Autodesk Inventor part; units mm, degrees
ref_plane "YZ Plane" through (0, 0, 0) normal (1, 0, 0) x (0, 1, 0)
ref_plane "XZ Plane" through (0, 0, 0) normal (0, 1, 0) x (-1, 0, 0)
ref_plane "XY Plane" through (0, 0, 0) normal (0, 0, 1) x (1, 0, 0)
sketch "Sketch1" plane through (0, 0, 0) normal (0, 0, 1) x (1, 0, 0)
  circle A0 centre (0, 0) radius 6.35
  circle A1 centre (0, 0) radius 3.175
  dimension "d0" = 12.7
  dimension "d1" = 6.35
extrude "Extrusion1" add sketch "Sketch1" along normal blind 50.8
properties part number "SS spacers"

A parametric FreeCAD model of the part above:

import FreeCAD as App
import Part
import Sketcher
from FreeCAD import Vector
Q = App.Units.Quantity

doc = App.newDocument("Part")
body = doc.addObject("PartDesign::Body", "Body")

# Sketch on XY plane
sketch1 = body.newObject("Sketcher::SketchObject", "Sketch")
sketch1.AttachmentSupport = (doc.getObject("XY_Plane"), [""])
sketch1.MapMode = "FlatFace"
sketch1.addGeometry([
    Part.Circle(Vector(0, 0, 0), Vector(0, 0, 1), 6.3),
    Part.Circle(Vector(0, 0, 0), Vector(0, 0, 1), 3.2),
], False)
sketch1.addConstraint([
    Sketcher.Constraint("Coincident", 0, 3, -1, 1),
    Sketcher.Constraint("Coincident", 1, 3, -1, 1),
    Sketcher.Constraint("Diameter", 0, Q("0.5 in")),
    Sketcher.Constraint("Diameter", 1, Q("0.25 in")),
])
pad1 = body.newObject("PartDesign::Pad", "Pad")
pad1.Profile = sketch1
pad1.Length = Q("2 in")

doc.recompute()
